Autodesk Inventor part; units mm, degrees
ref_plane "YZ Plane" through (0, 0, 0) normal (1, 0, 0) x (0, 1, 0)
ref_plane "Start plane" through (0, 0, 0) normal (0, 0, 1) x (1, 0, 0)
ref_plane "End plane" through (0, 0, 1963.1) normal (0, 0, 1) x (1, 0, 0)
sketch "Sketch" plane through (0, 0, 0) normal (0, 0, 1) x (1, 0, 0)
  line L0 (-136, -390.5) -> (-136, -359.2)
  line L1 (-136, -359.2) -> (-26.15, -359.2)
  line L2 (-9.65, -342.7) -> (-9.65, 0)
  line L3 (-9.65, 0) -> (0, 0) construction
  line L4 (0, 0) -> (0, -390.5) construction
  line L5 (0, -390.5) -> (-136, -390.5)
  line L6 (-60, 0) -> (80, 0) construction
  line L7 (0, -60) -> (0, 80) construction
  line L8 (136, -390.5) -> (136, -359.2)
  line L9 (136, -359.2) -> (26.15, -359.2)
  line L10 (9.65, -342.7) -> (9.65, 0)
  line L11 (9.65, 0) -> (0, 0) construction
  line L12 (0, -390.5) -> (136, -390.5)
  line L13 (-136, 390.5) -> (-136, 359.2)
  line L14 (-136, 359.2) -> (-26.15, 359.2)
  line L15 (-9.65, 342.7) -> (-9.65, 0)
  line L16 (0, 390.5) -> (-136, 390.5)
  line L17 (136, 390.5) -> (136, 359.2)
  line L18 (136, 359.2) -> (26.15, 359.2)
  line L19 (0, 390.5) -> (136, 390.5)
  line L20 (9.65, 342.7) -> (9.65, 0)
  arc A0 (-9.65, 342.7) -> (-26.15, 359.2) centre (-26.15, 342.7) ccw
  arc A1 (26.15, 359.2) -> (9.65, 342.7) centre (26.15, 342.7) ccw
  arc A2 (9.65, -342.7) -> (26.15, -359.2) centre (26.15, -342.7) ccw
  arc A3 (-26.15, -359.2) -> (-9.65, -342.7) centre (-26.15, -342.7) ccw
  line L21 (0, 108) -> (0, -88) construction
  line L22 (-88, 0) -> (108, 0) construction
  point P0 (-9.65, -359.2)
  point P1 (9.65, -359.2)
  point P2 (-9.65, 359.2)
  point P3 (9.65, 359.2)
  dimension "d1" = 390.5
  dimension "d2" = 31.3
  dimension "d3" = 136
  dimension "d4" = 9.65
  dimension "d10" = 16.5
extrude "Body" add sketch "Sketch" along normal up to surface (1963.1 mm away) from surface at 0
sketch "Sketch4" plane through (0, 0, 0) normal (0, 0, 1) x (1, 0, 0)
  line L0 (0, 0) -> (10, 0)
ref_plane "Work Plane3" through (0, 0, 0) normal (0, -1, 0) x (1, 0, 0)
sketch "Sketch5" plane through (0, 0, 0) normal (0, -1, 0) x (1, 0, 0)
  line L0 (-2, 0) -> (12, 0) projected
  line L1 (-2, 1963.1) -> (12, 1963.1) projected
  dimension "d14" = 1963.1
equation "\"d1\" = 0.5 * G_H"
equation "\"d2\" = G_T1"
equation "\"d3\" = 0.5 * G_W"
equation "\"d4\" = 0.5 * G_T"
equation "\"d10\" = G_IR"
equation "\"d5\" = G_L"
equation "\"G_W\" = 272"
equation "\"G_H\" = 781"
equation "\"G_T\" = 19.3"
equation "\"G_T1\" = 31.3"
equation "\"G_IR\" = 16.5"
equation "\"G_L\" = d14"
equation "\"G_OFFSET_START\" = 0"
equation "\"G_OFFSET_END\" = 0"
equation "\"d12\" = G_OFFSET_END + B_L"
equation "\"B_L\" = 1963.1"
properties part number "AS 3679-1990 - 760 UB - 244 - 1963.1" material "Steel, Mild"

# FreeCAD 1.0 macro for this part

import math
import FreeCAD as App
import Part
import Sketcher

V = App.Vector
Q = App.Units.Quantity

doc = App.newDocument("Part")
body = doc.addObject("PartDesign::Body", "Body")

sketch1 = doc.addObject("Sketcher::SketchObject", "Sketch")
body.addObject(sketch1)
sketch1.AttachmentSupport = (doc.XY_Plane, [""])
sketch1.MapMode = "FlatFace"
sketch1.addGeometry([
    Part.LineSegment(V(-136, -359, 0), V(-136, -390, 0)),
    Part.LineSegment(V(-136, -390, 0), V(136, -390, 0)),
    Part.LineSegment(V(136, -390, 0), V(136, -359, 0)),
    Part.LineSegment(V(136, -359, 0), V(26, -359, 0)),
    Part.ArcOfCircle(Part.Circle(V(26, -343, 0), V(0, 0, 1), 16), math.radians(180), math.radians(270)),
    Part.LineSegment(V(10, -343, 0), V(10, 343, 0)),
    Part.ArcOfCircle(Part.Circle(V(26, 343, 0), V(0, 0, 1), 16), math.radians(90), math.radians(180)),
    Part.LineSegment(V(26, 359, 0), V(136, 359, 0)),
    Part.LineSegment(V(136, 359, 0), V(136, 390, 0)),
    Part.LineSegment(V(136, 390, 0), V(-136, 390, 0)),
    Part.LineSegment(V(-136, 390, 0), V(-136, 359, 0)),
    Part.LineSegment(V(-136, 359, 0), V(-26, 359, 0)),
    Part.ArcOfCircle(Part.Circle(V(-26, 343, 0), V(0, 0, 1), 16), math.radians(0), math.radians(90)),
    Part.LineSegment(V(-10, 343, 0), V(-10, -343, 0)),
    Part.ArcOfCircle(Part.Circle(V(-26, -343, 0), V(0, 0, 1), 16), math.radians(-90), math.radians(0)),
    Part.LineSegment(V(-26, -359, 0), V(-136, -359, 0)),
], False)
sketch1.addConstraint([
    Sketcher.Constraint("Coincident", 0, 2, 1, 1),
    Sketcher.Constraint("Coincident", 1, 2, 2, 1),
    Sketcher.Constraint("Coincident", 2, 2, 3, 1),
    Sketcher.Constraint("Tangent", 3, 2, 4, 2),
    Sketcher.Constraint("Tangent", 4, 1, 5, 1),
    Sketcher.Constraint("Tangent", 5, 2, 6, 2),
    Sketcher.Constraint("Tangent", 6, 1, 7, 1),
    Sketcher.Constraint("Coincident", 7, 2, 8, 1),
    Sketcher.Constraint("Coincident", 8, 2, 9, 1),
    Sketcher.Constraint("Coincident", 9, 2, 10, 1),
    Sketcher.Constraint("Coincident", 10, 2, 11, 1),
    Sketcher.Constraint("Tangent", 11, 2, 12, 2),
    Sketcher.Constraint("Tangent", 12, 1, 13, 1),
    Sketcher.Constraint("Tangent", 13, 2, 14, 2),
    Sketcher.Constraint("Tangent", 14, 1, 15, 1),
    Sketcher.Constraint("Coincident", 15, 2, 0, 1),
    Sketcher.Constraint("Vertical", 0),
    Sketcher.Constraint("Horizontal", 1),
    Sketcher.Constraint("Vertical", 2),
    Sketcher.Constraint("Horizontal", 3),
    Sketcher.Constraint("Vertical", 5),
    Sketcher.Constraint("Horizontal", 7),
    Sketcher.Constraint("Vertical", 8),
    Sketcher.Constraint("Horizontal", 9),
    Sketcher.Constraint("Vertical", 10),
    Sketcher.Constraint("Horizontal", 11),
    Sketcher.Constraint("Vertical", 13),
    Sketcher.Constraint("Horizontal", 15),
    Sketcher.Constraint("Equal", 4, 6),
    Sketcher.Constraint("Equal", 6, 12),
    Sketcher.Constraint("Equal", 12, 14),
    Sketcher.Constraint("Symmetric", 4, 3, 12, 3, -1, 1),
    Sketcher.Constraint("Symmetric", 0, 2, 8, 2, -1, 1),
    Sketcher.Constraint("Symmetric", 7, 2, 10, 2, -2),
    Sketcher.Constraint("Symmetric", 2, 2, 15, 2, -2),
    Sketcher.Constraint("Radius", 4, Q("16.5 mm")),
    Sketcher.Constraint("DistanceY", 0, 2, 0, 1, Q("31.3 mm")),
    Sketcher.Constraint("DistanceX", 0, 2, -1, 1, Q("136 mm")),
    Sketcher.Constraint("DistanceY", 0, 2, -1, 1, Q("390.5 mm")),
    Sketcher.Constraint("DistanceX", -1, 1, 4, 1, Q("9.65 mm")),
])
pad1 = doc.addObject("PartDesign::Pad", "Pad")
body.addObject(pad1)
pad1.Profile = sketch1
pad1.Length = 1963.1

doc.recompute()
